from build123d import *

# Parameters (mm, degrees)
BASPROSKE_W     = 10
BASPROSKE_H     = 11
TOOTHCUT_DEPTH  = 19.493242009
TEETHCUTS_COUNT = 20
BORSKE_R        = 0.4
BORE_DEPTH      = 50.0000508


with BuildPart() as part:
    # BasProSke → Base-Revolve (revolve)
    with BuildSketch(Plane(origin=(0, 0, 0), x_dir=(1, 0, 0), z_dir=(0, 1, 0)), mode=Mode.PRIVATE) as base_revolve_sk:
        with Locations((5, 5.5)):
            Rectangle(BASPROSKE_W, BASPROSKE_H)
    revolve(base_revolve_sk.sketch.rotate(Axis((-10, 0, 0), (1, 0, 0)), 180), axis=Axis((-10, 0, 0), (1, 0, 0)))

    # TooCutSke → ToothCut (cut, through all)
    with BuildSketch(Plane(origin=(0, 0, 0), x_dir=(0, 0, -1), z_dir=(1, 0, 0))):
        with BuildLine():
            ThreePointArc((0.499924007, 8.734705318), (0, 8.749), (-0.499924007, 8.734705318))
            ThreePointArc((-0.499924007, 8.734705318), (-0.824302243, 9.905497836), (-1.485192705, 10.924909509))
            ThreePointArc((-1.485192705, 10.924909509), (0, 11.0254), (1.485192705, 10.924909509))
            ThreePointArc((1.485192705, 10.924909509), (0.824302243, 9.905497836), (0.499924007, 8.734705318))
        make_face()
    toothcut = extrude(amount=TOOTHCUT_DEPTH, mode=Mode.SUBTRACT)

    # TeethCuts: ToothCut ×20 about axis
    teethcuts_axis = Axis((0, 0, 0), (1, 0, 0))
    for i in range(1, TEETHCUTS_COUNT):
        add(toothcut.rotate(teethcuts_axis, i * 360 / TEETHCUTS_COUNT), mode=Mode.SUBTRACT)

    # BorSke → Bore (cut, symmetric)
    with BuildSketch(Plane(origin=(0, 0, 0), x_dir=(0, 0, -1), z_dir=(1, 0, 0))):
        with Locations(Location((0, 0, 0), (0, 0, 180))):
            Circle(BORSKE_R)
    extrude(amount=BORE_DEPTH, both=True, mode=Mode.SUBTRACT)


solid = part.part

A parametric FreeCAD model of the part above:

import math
import FreeCAD as App
import Part
import Sketcher

doc = App.newDocument("Part")
body = doc.addObject("PartDesign::Body", "Body")

sketch1 = body.newObject("Sketcher::SketchObject", "Sketch")
sketch1.AttachmentSupport = (doc.getObject("XZ_Plane"), [""])
sketch1.MapMode = "FlatFace"
sketch1.addGeometry([
    Part.LineSegment(App.Vector(0, -11, 0), App.Vector(0, 0, 0)),
    Part.LineSegment(App.Vector(0, 0, 0), App.Vector(10, 0, 0)),
    Part.LineSegment(App.Vector(10, 0, 0), App.Vector(10, -11, 0)),
    Part.LineSegment(App.Vector(10, -11, 0), App.Vector(0, -11, 0)),
], False)
sketch1.addConstraint([
    Sketcher.Constraint("Coincident", 0, 2, 1, 1),
    Sketcher.Constraint("Coincident", 1, 2, 2, 1),
    Sketcher.Constraint("Coincident", 2, 2, 3, 1),
    Sketcher.Constraint("Coincident", 3, 2, 0, 1),
    Sketcher.Constraint("Vertical", 0),
    Sketcher.Constraint("Horizontal", 1),
    Sketcher.Constraint("Vertical", 2),
    Sketcher.Constraint("Horizontal", 3),
    Sketcher.Constraint("Coincident", 0, 2, -1, 1),
    Sketcher.Constraint("DistanceX", 1, 1, 1, 2, 10.0),
    Sketcher.Constraint("DistanceY", 0, 1, 0, 2, 11.0),
])
revolution = body.newObject("PartDesign::Revolution", "Revolution")
revolution.Profile = sketch1
revolution.ReferenceAxis = (sketch1, ["H_Axis"])
revolution.Angle = 360

sketch2 = body.newObject("Sketcher::SketchObject", "Sketch001")
sketch2.AttachmentSupport = (doc.getObject("YZ_Plane"), [""])
sketch2.MapMode = "FlatFace"
sketch2.addGeometry([
    Part.ArcOfCircle(Part.Circle(App.Vector(0, 0, 0), App.Vector(0, 0, 1), 8.7), math.radians(-3.28), math.radians(3.28)),
    Part.ArcOfCircle(Part.Circle(App.Vector(8.3, -4.5, 0), App.Vector(0, 0, 1), 4), math.radians(48), math.radians(83)),
    Part.ArcOfCircle(Part.Circle(App.Vector(0, 0, 0), App.Vector(0, 0, 1), 11), math.radians(-7.74), math.radians(7.74)),
    Part.ArcOfCircle(Part.Circle(App.Vector(8.3, 4.5, 0), App.Vector(0, 0, 1), 4), math.radians(-83), math.radians(-48)),
], False)
sketch2.addConstraint([
    Sketcher.Constraint("Coincident", 0, 1, 1, 2),
    Sketcher.Constraint("Coincident", 1, 1, 2, 1),
    Sketcher.Constraint("Coincident", 2, 2, 3, 2),
    Sketcher.Constraint("Coincident", 3, 1, 0, 2),
    Sketcher.Constraint("Coincident", 0, 3, -1, 1),
    Sketcher.Constraint("Coincident", 2, 3, -1, 1),
    Sketcher.Constraint("Equal", 1, 3),
    Sketcher.Constraint("Symmetric", 1, 3, 3, 3, -1),
    Sketcher.Constraint("Radius", 1, 4.0),
    Sketcher.Constraint("Radius", 0, 8.749),
    Sketcher.Constraint("Radius", 2, 11.0254),
    Sketcher.Constraint("DistanceY", 1, 3, -1, 1, 4.47219),
    Sketcher.Constraint("DistanceX", -1, 1, 1, 1, 10.92491),
])
pocket1 = body.newObject("PartDesign::Pocket", "Pocket")
pocket1.Profile = sketch2
pocket1.Type = "ThroughAll"
pocket1.Reversed = True
doc.recompute()

polarpattern = body.newObject("PartDesign::PolarPattern", "PolarPattern")
polarpattern.Originals = [pocket1]
polarpattern.Axis = (doc.getObject("X_Axis"), [""])
polarpattern.Angle = 360
polarpattern.Occurrences = 20
body.Tip = polarpattern

sketch3 = body.newObject("Sketcher::SketchObject", "Sketch002")
sketch3.AttachmentSupport = (doc.getObject("YZ_Plane"), [""])
sketch3.MapMode = "FlatFace"
sketch3.addGeometry(Part.Circle(App.Vector(0, 0, 0), App.Vector(0, 0, 1), 0.4), False)
sketch3.addConstraint([
    Sketcher.Constraint("Coincident", 0, 3, -1, 1),
    Sketcher.Constraint("Diameter", 0, 0.8),
])
pocket2 = body.newObject("PartDesign::Pocket", "Pocket001")
pocket2.Profile = sketch3
pocket2.Length = 100.000102
pocket2.Midplane = True

doc.recompute()
